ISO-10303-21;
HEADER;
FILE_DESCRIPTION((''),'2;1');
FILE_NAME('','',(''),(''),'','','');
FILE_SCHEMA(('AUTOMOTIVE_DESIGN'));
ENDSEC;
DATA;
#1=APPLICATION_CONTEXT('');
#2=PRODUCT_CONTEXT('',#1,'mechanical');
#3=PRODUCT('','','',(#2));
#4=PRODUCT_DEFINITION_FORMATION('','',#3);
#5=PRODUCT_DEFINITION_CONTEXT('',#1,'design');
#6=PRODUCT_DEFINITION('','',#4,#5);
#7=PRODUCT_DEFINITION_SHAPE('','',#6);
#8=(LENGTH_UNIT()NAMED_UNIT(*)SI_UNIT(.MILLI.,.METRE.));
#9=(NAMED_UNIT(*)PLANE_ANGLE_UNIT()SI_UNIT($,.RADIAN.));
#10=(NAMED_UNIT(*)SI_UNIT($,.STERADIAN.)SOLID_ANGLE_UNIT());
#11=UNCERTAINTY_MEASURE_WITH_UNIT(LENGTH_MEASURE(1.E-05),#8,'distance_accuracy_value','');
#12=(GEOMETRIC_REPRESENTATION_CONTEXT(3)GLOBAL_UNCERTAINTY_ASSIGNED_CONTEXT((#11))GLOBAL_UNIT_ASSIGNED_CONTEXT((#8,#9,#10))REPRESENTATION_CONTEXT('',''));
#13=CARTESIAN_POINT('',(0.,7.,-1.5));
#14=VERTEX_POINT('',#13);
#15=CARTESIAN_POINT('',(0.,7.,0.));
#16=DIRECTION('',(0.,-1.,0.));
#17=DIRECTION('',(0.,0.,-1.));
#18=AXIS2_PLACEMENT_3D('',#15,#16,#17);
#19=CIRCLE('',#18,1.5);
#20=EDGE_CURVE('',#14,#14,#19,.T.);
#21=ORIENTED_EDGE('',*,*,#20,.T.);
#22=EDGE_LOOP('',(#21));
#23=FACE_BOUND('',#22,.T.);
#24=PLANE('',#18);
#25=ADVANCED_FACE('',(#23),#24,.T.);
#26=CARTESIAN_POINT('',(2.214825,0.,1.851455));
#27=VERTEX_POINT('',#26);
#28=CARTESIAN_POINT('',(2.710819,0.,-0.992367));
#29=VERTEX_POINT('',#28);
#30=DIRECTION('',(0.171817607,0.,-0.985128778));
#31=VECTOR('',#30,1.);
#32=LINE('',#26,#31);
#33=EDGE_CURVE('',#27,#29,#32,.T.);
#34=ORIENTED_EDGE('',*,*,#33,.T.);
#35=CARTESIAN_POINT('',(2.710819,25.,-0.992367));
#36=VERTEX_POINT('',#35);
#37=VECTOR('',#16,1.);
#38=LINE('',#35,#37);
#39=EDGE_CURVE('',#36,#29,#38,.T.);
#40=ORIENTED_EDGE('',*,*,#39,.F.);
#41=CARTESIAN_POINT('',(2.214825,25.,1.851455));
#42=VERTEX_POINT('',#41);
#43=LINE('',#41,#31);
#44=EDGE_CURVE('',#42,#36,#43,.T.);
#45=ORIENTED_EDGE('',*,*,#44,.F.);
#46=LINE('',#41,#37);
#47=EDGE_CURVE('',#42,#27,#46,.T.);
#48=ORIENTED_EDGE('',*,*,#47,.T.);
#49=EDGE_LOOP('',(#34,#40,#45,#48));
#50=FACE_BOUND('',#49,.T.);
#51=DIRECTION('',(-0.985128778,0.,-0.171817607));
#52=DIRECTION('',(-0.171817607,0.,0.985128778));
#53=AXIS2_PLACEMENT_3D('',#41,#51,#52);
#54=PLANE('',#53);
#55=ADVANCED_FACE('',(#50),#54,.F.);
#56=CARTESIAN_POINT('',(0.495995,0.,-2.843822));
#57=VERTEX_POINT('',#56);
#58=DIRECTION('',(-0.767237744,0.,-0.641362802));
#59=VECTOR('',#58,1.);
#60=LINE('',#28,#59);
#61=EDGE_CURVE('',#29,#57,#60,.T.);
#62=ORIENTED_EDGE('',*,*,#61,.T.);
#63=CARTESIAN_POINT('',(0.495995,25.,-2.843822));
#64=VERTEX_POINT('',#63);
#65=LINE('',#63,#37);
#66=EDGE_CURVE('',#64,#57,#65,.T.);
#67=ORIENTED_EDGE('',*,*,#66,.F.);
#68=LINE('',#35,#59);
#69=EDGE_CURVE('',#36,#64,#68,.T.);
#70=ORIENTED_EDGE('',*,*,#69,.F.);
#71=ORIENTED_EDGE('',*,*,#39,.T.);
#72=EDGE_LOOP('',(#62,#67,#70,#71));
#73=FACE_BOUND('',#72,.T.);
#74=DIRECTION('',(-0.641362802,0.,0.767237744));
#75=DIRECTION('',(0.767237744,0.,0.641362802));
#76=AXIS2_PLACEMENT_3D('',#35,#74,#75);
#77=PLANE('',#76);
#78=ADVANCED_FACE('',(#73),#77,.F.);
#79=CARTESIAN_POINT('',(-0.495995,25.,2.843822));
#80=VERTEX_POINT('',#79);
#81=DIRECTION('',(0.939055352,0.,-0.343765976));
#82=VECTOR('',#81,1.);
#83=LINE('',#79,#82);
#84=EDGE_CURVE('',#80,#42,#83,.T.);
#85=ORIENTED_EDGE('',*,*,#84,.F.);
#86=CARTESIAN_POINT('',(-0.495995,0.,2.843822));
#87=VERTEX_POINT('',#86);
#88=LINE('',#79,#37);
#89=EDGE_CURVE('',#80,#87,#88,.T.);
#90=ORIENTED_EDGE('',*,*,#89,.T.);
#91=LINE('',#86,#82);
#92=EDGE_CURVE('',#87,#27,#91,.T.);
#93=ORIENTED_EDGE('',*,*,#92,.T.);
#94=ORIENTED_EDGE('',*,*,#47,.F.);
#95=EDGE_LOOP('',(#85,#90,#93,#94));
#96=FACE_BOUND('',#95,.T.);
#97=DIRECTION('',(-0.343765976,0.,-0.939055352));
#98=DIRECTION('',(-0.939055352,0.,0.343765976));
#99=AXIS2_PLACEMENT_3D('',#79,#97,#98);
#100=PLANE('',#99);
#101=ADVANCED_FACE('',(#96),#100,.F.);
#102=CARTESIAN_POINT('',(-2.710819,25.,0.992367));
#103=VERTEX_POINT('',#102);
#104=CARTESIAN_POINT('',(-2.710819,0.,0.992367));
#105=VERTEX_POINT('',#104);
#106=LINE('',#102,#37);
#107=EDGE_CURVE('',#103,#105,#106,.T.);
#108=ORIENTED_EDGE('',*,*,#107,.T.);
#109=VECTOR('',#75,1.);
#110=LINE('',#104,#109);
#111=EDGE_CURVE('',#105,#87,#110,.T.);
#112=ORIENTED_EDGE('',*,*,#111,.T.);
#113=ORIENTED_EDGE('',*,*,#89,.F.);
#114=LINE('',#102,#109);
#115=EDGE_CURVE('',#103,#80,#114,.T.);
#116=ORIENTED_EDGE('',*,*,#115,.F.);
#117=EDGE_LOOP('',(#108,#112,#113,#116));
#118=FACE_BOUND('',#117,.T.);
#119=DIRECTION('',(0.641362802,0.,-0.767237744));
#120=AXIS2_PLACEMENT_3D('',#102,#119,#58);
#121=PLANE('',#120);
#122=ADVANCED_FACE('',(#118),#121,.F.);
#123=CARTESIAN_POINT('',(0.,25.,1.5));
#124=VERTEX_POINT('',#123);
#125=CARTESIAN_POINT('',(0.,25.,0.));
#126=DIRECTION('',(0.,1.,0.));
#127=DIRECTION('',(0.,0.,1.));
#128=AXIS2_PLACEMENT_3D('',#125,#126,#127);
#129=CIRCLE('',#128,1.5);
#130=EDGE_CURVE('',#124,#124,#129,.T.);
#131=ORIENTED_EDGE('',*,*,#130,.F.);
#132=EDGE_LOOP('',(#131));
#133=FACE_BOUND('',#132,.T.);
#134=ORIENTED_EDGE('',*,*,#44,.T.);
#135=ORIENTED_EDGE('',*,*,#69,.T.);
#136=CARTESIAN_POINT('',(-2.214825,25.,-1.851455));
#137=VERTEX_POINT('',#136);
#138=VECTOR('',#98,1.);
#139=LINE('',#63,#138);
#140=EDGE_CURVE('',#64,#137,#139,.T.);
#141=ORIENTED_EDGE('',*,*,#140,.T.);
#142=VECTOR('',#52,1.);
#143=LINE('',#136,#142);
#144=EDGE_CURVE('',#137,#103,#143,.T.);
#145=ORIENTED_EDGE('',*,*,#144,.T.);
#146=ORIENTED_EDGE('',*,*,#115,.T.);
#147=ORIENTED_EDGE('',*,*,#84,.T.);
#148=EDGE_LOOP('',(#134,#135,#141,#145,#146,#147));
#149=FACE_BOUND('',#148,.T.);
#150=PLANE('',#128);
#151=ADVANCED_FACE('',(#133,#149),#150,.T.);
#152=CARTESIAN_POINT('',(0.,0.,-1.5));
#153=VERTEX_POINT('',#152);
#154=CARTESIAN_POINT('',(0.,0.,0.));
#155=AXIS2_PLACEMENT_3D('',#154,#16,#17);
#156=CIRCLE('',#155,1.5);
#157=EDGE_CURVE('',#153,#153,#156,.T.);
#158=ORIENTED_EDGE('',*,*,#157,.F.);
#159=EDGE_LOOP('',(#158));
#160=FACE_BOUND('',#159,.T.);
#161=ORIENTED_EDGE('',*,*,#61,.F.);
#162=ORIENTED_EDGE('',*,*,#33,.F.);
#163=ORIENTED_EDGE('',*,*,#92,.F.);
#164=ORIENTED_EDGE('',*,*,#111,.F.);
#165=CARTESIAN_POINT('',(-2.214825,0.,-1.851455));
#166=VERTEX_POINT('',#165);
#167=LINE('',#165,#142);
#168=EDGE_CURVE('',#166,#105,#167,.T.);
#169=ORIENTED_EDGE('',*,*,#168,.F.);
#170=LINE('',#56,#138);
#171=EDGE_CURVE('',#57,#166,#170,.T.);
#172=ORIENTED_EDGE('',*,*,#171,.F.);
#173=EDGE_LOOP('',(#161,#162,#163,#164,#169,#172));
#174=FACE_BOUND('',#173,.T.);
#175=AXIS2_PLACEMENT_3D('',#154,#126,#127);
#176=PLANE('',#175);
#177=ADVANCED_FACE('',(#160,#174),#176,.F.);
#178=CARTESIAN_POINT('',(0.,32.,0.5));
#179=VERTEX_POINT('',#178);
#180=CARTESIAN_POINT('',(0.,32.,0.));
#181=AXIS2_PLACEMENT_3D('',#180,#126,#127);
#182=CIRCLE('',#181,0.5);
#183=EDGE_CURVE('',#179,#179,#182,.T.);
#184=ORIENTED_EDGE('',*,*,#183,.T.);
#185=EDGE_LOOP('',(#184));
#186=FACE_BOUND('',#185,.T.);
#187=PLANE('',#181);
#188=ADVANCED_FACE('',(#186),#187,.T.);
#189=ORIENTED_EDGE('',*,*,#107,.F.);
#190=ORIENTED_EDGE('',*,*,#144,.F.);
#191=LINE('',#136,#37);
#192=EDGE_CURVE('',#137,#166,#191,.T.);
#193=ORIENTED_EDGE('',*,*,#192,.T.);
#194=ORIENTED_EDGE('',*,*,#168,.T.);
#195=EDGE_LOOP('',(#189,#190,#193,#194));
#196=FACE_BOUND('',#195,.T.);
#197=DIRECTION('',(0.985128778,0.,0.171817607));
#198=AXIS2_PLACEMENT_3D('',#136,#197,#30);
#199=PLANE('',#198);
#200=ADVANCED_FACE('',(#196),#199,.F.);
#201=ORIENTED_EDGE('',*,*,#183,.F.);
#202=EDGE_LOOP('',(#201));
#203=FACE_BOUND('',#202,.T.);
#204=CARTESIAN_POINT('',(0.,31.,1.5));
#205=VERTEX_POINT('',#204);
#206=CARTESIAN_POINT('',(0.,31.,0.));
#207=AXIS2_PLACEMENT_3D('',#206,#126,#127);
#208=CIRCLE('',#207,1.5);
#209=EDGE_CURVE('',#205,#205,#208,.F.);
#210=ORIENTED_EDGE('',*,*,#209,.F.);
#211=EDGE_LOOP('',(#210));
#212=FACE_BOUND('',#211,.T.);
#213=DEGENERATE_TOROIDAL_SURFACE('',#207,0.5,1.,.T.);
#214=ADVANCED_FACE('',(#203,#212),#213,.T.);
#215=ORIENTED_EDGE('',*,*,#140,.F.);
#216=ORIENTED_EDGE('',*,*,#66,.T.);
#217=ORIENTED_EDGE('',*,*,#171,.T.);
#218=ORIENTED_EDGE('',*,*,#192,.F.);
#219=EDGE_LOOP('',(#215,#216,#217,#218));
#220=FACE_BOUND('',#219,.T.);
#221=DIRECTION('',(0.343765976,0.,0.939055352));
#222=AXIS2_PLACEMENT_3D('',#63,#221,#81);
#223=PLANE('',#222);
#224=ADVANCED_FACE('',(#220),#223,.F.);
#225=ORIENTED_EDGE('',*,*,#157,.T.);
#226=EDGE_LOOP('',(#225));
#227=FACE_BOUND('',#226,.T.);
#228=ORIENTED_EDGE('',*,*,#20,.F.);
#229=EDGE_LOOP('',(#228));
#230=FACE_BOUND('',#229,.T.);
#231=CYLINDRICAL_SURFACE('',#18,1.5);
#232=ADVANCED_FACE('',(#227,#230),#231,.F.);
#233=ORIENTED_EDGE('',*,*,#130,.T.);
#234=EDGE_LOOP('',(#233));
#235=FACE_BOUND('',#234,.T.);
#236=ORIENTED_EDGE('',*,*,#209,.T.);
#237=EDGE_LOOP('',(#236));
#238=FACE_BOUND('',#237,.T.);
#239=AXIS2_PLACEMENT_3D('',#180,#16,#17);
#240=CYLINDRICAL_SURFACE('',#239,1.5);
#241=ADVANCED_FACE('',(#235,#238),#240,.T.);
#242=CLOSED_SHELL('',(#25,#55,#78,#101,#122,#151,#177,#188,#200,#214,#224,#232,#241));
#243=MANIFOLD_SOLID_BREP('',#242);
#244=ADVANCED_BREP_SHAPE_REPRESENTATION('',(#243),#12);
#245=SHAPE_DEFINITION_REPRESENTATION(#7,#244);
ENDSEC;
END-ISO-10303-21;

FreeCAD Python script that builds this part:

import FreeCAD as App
import Part
import Sketcher
Q = App.Units.Quantity


def edges_at(feature, points):
    """Names of the edges that pass closest to the given points."""
    edges = feature.Shape.Edges
    near = lambda p: min(range(len(edges)), key=lambda i: edges[i].distToShape(Part.Vertex(*p))[0])
    return sorted({f"Edge{near(p) + 1}" for p in points})

doc = App.newDocument("Part")
body = doc.addObject("PartDesign::Body", "Body")

# Sketch on XZ plane
sketch1 = body.newObject("Sketcher::SketchObject", "Sketch")
sketch1.AttachmentSupport = (doc.getObject("XZ_Plane"), [""])
sketch1.MapMode = "FlatFace"
sketch1.addGeometry([
    Part.LineSegment(App.Vector(2.2, 1.9, 0), App.Vector(2.7, -1, 0)),  # 0
    Part.LineSegment(App.Vector(2.7, -1, 0), App.Vector(0.5, -2.8, 0)),  # 1
    Part.LineSegment(App.Vector(0.5, -2.8, 0), App.Vector(-2.2, -1.9, 0)),  # 2
    Part.LineSegment(App.Vector(-2.2, -1.9, 0), App.Vector(-2.7, 1, 0)),  # 3
    Part.LineSegment(App.Vector(-2.7, 1, 0), App.Vector(-0.5, 2.8, 0)),  # 4
    Part.LineSegment(App.Vector(-0.5, 2.8, 0), App.Vector(2.2, 1.9, 0)),  # 5
], False)
sketch1.addConstraint([
    Sketcher.Constraint("Coincident", 0, 2, 1, 1),
    Sketcher.Constraint("Coincident", 1, 2, 2, 1),
    Sketcher.Constraint("Coincident", 2, 2, 3, 1),
    Sketcher.Constraint("Coincident", 3, 2, 4, 1),
    Sketcher.Constraint("Coincident", 4, 2, 5, 1),
    Sketcher.Constraint("Coincident", 5, 2, 0, 1),
    Sketcher.Constraint("Symmetric", 0, 2, 3, 2, -1, 1),
    Sketcher.Constraint("Symmetric", 1, 2, 4, 2, -1, 1),
    Sketcher.Constraint("Symmetric", 2, 2, 5, 2, -1, 1),
    Sketcher.Constraint("Equal", 0, 1),
    Sketcher.Constraint("Equal", 1, 2),
    Sketcher.Constraint("Distance", 0, Q("2.886751 mm")),
    Sketcher.Constraint("DistanceX", -1, 1, 0, 2, Q("2.710819 mm")),
    Sketcher.Constraint("DistanceY", 1, 2, -1, 1, Q("2.843822 mm")),
    Sketcher.Constraint("DistanceX", 2, 2, 1, 2, Q("2.710819 mm")),
])
pad1 = body.newObject("PartDesign::Pad", "Pad")
pad1.Profile = sketch1
pad1.Length = 25
pad1.Reversed = True

# Sketch on XZ plane
sketch2 = body.newObject("Sketcher::SketchObject", "Sketch001")
sketch2.AttachmentSupport = (doc.getObject("XZ_Plane"), [""])
sketch2.MapMode = "FlatFace"
sketch2.AttachmentOffset = App.Placement(App.Vector(0, 0, -25), App.Rotation())
sketch2.addGeometry(Part.Circle(App.Vector(0, 0, 0), App.Vector(0, 0, 1), 1.5), False)
sketch2.addConstraint([
    Sketcher.Constraint("Coincident", 0, 3, -1, 1),
    Sketcher.Constraint("Diameter", 0, Q("3 mm")),
])
pad2 = body.newObject("PartDesign::Pad", "Pad001")
pad2.Profile = sketch2
pad2.Length = 7
pad2.Reversed = True

# Sketch on XZ plane
sketch3 = body.newObject("Sketcher::SketchObject", "Sketch002")
sketch3.AttachmentSupport = (doc.getObject("XZ_Plane"), [""])
sketch3.MapMode = "FlatFace"
sketch3.addGeometry(Part.Circle(App.Vector(0, 0, 0), App.Vector(0, 0, 1), 1.5), False)
sketch3.addConstraint([
    Sketcher.Constraint("Coincident", 0, 3, -1, 1),
    Sketcher.Constraint("Diameter", 0, Q("3 mm")),
])
pocket1 = body.newObject("PartDesign::Pocket", "Pocket")
pocket1.Profile = sketch3
pocket1.Length = 7
doc.recompute()

fillet = body.newObject("PartDesign::Fillet", "Fillet")
fillet.Base = (pocket1, edges_at(pocket1, [(-1.5, 32, 0)]))
fillet.Radius = 1

doc.recompute()
